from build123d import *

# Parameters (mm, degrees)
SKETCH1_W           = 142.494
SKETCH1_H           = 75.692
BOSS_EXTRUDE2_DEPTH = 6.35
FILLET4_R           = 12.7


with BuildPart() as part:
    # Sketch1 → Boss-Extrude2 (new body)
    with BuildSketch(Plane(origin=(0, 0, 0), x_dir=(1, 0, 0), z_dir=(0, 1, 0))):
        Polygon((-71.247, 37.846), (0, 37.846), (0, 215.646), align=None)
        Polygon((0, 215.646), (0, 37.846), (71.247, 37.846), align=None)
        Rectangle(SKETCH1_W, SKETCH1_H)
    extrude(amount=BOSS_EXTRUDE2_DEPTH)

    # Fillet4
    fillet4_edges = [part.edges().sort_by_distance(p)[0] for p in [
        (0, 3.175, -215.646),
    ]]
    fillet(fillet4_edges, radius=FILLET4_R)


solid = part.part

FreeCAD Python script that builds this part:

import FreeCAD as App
import Part
import Sketcher
from FreeCAD import Vector
Q = App.Units.Quantity


def edges_at(feature, points):
    """Names of the edges that pass closest to the given points."""
    edges = feature.Shape.Edges
    near = lambda p: min(range(len(edges)), key=lambda i: edges[i].distToShape(Part.Vertex(*p))[0])
    return sorted({f"Edge{near(p) + 1}" for p in points})


def add_polygon(sketch, points):
    """Adds a closed chain of lines whose ends are joined by coincident constraints."""
    first, n = sketch.GeometryCount, len(points)
    for a, b in zip(points, points[1:] + points[:1]):
        sketch.addGeometry(Part.LineSegment(App.Vector(*a, 0), App.Vector(*b, 0)), False)
    for i in range(n):
        sketch.addConstraint(Sketcher.Constraint("Coincident", first + i, 2, first + (i + 1) % n, 1))

doc = App.newDocument("Part")
body = doc.addObject("PartDesign::Body", "Body")

sketch1 = body.newObject("Sketcher::SketchObject", "Sketch")
sketch1.AttachmentSupport = (doc.getObject("XZ_Plane"), [""])
sketch1.MapMode = "FlatFace"
add_polygon(sketch1, [(71, -38), (0, -216), (-71, -38), (-71, 38), (71, 38)])
sketch1.addConstraint([
    Sketcher.Constraint("Vertical", 2),
    Sketcher.Constraint("Horizontal", 3),
    Sketcher.Constraint("Vertical", 4),
    Sketcher.Constraint("Symmetric", 1, 2, 3, 2, -1, 1),
    Sketcher.Constraint("PointOnObject", 0, 2, -2),
    Sketcher.Constraint("Horizontal", 1, 2, 4, 2),
    Sketcher.Constraint("DistanceY", 0, 2, 1, 2, Q("7 in")),
    Sketcher.Constraint("DistanceX", 3, 1, 3, 2, Q("5.61 in")),
    Sketcher.Constraint("DistanceY", 2, 1, 2, 2, Q("2.98 in")),
])
pad1 = body.newObject("PartDesign::Pad", "Pad")
pad1.Profile = sketch1
pad1.Length = Q("0.25 in")
pad1.Reversed = True
doc.recompute()

fillet = body.newObject("PartDesign::Fillet", "Fillet")
fillet.Base = (pad1, edges_at(pad1, [(0, 3.175, -215.646)]))
fillet.Radius = Q("0.5 in")

doc.recompute()
